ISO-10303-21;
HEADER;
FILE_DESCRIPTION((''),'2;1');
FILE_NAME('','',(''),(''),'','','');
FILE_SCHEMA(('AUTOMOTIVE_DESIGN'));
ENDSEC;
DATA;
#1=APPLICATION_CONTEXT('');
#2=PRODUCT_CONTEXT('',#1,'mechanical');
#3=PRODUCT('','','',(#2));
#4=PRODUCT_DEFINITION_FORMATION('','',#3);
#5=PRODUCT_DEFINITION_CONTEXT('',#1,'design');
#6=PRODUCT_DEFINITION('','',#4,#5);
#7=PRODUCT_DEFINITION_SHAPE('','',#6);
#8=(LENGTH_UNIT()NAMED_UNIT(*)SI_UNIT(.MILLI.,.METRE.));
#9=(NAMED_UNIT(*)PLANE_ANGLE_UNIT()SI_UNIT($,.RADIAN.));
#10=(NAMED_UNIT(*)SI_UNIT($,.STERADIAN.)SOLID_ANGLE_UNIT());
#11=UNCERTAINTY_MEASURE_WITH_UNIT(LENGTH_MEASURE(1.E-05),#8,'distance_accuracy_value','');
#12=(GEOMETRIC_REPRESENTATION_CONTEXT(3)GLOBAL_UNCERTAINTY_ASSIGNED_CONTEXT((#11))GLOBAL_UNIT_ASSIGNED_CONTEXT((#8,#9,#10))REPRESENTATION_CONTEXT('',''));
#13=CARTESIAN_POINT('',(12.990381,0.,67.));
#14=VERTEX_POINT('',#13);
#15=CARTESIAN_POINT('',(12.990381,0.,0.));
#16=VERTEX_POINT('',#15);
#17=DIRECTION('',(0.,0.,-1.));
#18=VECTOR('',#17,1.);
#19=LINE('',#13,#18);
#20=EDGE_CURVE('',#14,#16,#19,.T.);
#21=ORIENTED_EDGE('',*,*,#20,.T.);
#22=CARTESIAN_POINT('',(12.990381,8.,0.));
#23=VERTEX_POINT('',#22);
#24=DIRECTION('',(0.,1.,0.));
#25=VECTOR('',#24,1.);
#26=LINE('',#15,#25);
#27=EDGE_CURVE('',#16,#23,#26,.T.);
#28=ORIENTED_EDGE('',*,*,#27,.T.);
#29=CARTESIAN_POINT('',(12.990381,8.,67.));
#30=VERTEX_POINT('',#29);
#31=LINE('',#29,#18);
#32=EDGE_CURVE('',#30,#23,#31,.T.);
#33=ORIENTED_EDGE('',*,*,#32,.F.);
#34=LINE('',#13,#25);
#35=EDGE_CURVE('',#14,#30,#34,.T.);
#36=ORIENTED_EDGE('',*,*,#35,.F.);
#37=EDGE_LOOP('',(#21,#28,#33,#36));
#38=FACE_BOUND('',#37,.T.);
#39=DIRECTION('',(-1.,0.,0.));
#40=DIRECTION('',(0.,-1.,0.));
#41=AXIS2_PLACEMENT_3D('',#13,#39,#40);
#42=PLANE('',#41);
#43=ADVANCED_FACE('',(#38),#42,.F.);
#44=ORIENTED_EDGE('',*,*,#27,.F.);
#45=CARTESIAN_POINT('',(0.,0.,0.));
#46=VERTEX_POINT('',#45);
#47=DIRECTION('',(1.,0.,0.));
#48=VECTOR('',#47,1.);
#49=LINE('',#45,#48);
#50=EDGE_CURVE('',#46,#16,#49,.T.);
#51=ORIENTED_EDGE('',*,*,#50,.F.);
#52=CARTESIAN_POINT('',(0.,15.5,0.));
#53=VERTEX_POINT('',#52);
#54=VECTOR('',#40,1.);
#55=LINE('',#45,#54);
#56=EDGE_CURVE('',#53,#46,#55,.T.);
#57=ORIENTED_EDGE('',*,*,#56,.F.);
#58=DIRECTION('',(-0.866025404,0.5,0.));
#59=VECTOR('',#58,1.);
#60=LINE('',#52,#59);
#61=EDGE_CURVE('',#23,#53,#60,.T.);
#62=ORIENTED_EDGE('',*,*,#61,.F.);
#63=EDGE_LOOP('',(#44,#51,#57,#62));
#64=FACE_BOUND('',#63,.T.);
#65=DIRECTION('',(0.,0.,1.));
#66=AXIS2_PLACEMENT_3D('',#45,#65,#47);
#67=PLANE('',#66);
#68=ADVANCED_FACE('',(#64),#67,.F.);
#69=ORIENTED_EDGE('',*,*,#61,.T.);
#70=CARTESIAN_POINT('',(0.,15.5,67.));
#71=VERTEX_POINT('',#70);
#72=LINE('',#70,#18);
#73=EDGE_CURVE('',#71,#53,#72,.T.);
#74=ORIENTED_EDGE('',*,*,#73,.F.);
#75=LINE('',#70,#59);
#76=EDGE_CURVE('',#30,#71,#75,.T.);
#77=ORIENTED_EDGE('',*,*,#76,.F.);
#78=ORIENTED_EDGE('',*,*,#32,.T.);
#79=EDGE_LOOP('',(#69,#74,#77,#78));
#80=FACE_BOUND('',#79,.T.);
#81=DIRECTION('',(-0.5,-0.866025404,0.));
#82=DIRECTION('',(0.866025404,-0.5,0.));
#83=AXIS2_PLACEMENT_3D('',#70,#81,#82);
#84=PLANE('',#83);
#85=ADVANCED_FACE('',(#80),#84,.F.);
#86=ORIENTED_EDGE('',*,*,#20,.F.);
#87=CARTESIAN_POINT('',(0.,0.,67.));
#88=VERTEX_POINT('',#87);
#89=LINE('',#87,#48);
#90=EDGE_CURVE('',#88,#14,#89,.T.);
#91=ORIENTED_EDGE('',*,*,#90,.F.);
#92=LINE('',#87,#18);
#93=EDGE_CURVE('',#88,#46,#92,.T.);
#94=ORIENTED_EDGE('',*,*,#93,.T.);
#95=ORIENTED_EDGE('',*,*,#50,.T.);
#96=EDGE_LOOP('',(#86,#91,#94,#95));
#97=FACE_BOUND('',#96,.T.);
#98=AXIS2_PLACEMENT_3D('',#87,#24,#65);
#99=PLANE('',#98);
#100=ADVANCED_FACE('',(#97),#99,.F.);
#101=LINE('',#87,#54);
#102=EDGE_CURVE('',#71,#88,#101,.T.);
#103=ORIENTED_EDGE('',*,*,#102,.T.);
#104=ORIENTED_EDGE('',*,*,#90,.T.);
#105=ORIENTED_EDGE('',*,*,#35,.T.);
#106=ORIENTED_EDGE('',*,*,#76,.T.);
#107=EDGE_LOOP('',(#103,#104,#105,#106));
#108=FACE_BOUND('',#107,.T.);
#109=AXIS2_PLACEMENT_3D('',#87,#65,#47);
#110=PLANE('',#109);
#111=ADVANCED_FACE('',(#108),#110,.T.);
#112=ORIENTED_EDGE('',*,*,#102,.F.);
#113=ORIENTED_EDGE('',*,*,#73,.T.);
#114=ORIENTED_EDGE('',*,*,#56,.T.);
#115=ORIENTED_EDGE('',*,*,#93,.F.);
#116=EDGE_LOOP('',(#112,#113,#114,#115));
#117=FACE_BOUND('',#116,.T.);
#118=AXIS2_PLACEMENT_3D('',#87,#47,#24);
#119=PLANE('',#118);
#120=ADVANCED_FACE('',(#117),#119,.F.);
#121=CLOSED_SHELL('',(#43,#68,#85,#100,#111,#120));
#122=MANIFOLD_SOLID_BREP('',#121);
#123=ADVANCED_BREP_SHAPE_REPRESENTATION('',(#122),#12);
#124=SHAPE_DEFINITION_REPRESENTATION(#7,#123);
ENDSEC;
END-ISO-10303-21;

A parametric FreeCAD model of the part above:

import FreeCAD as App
import Part
import Sketcher

V = App.Vector
Q = App.Units.Quantity

doc = App.newDocument("Part")
body = doc.addObject("PartDesign::Body", "Body")

# Sketch on XY plane
sketch1 = doc.addObject("Sketcher::SketchObject", "Sketch")
body.addObject(sketch1)
sketch1.AttachmentSupport = (doc.XY_Plane, [""])
sketch1.MapMode = "FlatFace"
sketch1.addGeometry([
    Part.LineSegment(V(0, 15.5, 0), V(0, 0, 0)),
    Part.LineSegment(V(0, 0, 0), V(12.990381, 0, 0)),
    Part.LineSegment(V(12.990381, 0, 0), V(12.990381, 8, 0)),
    Part.LineSegment(V(12.990381, 8, 0), V(0, 15.5, 0)),
], False)
sketch1.addConstraint([
    Sketcher.Constraint("Coincident", 0, 2, 1, 1),
    Sketcher.Constraint("Coincident", 1, 2, 2, 1),
    Sketcher.Constraint("Coincident", 2, 2, 3, 1),
    Sketcher.Constraint("Coincident", 3, 2, 0, 1),
    Sketcher.Constraint("Vertical", 0),
    Sketcher.Constraint("Horizontal", 1),
    Sketcher.Constraint("Vertical", 2),
    Sketcher.Constraint("Coincident", 0, 2, -1, 1),
    Sketcher.Constraint("DistanceY", 2, 1, 2, 2, Q("8 mm")),
    Sketcher.Constraint("Angle", 3, Q("150 deg")),
    Sketcher.Constraint("Distance", 3, Q("15 mm")),
])
pad1 = doc.addObject("PartDesign::Pad", "Pad")
body.addObject(pad1)
pad1.Profile = sketch1
pad1.Length = 67

doc.recompute()
